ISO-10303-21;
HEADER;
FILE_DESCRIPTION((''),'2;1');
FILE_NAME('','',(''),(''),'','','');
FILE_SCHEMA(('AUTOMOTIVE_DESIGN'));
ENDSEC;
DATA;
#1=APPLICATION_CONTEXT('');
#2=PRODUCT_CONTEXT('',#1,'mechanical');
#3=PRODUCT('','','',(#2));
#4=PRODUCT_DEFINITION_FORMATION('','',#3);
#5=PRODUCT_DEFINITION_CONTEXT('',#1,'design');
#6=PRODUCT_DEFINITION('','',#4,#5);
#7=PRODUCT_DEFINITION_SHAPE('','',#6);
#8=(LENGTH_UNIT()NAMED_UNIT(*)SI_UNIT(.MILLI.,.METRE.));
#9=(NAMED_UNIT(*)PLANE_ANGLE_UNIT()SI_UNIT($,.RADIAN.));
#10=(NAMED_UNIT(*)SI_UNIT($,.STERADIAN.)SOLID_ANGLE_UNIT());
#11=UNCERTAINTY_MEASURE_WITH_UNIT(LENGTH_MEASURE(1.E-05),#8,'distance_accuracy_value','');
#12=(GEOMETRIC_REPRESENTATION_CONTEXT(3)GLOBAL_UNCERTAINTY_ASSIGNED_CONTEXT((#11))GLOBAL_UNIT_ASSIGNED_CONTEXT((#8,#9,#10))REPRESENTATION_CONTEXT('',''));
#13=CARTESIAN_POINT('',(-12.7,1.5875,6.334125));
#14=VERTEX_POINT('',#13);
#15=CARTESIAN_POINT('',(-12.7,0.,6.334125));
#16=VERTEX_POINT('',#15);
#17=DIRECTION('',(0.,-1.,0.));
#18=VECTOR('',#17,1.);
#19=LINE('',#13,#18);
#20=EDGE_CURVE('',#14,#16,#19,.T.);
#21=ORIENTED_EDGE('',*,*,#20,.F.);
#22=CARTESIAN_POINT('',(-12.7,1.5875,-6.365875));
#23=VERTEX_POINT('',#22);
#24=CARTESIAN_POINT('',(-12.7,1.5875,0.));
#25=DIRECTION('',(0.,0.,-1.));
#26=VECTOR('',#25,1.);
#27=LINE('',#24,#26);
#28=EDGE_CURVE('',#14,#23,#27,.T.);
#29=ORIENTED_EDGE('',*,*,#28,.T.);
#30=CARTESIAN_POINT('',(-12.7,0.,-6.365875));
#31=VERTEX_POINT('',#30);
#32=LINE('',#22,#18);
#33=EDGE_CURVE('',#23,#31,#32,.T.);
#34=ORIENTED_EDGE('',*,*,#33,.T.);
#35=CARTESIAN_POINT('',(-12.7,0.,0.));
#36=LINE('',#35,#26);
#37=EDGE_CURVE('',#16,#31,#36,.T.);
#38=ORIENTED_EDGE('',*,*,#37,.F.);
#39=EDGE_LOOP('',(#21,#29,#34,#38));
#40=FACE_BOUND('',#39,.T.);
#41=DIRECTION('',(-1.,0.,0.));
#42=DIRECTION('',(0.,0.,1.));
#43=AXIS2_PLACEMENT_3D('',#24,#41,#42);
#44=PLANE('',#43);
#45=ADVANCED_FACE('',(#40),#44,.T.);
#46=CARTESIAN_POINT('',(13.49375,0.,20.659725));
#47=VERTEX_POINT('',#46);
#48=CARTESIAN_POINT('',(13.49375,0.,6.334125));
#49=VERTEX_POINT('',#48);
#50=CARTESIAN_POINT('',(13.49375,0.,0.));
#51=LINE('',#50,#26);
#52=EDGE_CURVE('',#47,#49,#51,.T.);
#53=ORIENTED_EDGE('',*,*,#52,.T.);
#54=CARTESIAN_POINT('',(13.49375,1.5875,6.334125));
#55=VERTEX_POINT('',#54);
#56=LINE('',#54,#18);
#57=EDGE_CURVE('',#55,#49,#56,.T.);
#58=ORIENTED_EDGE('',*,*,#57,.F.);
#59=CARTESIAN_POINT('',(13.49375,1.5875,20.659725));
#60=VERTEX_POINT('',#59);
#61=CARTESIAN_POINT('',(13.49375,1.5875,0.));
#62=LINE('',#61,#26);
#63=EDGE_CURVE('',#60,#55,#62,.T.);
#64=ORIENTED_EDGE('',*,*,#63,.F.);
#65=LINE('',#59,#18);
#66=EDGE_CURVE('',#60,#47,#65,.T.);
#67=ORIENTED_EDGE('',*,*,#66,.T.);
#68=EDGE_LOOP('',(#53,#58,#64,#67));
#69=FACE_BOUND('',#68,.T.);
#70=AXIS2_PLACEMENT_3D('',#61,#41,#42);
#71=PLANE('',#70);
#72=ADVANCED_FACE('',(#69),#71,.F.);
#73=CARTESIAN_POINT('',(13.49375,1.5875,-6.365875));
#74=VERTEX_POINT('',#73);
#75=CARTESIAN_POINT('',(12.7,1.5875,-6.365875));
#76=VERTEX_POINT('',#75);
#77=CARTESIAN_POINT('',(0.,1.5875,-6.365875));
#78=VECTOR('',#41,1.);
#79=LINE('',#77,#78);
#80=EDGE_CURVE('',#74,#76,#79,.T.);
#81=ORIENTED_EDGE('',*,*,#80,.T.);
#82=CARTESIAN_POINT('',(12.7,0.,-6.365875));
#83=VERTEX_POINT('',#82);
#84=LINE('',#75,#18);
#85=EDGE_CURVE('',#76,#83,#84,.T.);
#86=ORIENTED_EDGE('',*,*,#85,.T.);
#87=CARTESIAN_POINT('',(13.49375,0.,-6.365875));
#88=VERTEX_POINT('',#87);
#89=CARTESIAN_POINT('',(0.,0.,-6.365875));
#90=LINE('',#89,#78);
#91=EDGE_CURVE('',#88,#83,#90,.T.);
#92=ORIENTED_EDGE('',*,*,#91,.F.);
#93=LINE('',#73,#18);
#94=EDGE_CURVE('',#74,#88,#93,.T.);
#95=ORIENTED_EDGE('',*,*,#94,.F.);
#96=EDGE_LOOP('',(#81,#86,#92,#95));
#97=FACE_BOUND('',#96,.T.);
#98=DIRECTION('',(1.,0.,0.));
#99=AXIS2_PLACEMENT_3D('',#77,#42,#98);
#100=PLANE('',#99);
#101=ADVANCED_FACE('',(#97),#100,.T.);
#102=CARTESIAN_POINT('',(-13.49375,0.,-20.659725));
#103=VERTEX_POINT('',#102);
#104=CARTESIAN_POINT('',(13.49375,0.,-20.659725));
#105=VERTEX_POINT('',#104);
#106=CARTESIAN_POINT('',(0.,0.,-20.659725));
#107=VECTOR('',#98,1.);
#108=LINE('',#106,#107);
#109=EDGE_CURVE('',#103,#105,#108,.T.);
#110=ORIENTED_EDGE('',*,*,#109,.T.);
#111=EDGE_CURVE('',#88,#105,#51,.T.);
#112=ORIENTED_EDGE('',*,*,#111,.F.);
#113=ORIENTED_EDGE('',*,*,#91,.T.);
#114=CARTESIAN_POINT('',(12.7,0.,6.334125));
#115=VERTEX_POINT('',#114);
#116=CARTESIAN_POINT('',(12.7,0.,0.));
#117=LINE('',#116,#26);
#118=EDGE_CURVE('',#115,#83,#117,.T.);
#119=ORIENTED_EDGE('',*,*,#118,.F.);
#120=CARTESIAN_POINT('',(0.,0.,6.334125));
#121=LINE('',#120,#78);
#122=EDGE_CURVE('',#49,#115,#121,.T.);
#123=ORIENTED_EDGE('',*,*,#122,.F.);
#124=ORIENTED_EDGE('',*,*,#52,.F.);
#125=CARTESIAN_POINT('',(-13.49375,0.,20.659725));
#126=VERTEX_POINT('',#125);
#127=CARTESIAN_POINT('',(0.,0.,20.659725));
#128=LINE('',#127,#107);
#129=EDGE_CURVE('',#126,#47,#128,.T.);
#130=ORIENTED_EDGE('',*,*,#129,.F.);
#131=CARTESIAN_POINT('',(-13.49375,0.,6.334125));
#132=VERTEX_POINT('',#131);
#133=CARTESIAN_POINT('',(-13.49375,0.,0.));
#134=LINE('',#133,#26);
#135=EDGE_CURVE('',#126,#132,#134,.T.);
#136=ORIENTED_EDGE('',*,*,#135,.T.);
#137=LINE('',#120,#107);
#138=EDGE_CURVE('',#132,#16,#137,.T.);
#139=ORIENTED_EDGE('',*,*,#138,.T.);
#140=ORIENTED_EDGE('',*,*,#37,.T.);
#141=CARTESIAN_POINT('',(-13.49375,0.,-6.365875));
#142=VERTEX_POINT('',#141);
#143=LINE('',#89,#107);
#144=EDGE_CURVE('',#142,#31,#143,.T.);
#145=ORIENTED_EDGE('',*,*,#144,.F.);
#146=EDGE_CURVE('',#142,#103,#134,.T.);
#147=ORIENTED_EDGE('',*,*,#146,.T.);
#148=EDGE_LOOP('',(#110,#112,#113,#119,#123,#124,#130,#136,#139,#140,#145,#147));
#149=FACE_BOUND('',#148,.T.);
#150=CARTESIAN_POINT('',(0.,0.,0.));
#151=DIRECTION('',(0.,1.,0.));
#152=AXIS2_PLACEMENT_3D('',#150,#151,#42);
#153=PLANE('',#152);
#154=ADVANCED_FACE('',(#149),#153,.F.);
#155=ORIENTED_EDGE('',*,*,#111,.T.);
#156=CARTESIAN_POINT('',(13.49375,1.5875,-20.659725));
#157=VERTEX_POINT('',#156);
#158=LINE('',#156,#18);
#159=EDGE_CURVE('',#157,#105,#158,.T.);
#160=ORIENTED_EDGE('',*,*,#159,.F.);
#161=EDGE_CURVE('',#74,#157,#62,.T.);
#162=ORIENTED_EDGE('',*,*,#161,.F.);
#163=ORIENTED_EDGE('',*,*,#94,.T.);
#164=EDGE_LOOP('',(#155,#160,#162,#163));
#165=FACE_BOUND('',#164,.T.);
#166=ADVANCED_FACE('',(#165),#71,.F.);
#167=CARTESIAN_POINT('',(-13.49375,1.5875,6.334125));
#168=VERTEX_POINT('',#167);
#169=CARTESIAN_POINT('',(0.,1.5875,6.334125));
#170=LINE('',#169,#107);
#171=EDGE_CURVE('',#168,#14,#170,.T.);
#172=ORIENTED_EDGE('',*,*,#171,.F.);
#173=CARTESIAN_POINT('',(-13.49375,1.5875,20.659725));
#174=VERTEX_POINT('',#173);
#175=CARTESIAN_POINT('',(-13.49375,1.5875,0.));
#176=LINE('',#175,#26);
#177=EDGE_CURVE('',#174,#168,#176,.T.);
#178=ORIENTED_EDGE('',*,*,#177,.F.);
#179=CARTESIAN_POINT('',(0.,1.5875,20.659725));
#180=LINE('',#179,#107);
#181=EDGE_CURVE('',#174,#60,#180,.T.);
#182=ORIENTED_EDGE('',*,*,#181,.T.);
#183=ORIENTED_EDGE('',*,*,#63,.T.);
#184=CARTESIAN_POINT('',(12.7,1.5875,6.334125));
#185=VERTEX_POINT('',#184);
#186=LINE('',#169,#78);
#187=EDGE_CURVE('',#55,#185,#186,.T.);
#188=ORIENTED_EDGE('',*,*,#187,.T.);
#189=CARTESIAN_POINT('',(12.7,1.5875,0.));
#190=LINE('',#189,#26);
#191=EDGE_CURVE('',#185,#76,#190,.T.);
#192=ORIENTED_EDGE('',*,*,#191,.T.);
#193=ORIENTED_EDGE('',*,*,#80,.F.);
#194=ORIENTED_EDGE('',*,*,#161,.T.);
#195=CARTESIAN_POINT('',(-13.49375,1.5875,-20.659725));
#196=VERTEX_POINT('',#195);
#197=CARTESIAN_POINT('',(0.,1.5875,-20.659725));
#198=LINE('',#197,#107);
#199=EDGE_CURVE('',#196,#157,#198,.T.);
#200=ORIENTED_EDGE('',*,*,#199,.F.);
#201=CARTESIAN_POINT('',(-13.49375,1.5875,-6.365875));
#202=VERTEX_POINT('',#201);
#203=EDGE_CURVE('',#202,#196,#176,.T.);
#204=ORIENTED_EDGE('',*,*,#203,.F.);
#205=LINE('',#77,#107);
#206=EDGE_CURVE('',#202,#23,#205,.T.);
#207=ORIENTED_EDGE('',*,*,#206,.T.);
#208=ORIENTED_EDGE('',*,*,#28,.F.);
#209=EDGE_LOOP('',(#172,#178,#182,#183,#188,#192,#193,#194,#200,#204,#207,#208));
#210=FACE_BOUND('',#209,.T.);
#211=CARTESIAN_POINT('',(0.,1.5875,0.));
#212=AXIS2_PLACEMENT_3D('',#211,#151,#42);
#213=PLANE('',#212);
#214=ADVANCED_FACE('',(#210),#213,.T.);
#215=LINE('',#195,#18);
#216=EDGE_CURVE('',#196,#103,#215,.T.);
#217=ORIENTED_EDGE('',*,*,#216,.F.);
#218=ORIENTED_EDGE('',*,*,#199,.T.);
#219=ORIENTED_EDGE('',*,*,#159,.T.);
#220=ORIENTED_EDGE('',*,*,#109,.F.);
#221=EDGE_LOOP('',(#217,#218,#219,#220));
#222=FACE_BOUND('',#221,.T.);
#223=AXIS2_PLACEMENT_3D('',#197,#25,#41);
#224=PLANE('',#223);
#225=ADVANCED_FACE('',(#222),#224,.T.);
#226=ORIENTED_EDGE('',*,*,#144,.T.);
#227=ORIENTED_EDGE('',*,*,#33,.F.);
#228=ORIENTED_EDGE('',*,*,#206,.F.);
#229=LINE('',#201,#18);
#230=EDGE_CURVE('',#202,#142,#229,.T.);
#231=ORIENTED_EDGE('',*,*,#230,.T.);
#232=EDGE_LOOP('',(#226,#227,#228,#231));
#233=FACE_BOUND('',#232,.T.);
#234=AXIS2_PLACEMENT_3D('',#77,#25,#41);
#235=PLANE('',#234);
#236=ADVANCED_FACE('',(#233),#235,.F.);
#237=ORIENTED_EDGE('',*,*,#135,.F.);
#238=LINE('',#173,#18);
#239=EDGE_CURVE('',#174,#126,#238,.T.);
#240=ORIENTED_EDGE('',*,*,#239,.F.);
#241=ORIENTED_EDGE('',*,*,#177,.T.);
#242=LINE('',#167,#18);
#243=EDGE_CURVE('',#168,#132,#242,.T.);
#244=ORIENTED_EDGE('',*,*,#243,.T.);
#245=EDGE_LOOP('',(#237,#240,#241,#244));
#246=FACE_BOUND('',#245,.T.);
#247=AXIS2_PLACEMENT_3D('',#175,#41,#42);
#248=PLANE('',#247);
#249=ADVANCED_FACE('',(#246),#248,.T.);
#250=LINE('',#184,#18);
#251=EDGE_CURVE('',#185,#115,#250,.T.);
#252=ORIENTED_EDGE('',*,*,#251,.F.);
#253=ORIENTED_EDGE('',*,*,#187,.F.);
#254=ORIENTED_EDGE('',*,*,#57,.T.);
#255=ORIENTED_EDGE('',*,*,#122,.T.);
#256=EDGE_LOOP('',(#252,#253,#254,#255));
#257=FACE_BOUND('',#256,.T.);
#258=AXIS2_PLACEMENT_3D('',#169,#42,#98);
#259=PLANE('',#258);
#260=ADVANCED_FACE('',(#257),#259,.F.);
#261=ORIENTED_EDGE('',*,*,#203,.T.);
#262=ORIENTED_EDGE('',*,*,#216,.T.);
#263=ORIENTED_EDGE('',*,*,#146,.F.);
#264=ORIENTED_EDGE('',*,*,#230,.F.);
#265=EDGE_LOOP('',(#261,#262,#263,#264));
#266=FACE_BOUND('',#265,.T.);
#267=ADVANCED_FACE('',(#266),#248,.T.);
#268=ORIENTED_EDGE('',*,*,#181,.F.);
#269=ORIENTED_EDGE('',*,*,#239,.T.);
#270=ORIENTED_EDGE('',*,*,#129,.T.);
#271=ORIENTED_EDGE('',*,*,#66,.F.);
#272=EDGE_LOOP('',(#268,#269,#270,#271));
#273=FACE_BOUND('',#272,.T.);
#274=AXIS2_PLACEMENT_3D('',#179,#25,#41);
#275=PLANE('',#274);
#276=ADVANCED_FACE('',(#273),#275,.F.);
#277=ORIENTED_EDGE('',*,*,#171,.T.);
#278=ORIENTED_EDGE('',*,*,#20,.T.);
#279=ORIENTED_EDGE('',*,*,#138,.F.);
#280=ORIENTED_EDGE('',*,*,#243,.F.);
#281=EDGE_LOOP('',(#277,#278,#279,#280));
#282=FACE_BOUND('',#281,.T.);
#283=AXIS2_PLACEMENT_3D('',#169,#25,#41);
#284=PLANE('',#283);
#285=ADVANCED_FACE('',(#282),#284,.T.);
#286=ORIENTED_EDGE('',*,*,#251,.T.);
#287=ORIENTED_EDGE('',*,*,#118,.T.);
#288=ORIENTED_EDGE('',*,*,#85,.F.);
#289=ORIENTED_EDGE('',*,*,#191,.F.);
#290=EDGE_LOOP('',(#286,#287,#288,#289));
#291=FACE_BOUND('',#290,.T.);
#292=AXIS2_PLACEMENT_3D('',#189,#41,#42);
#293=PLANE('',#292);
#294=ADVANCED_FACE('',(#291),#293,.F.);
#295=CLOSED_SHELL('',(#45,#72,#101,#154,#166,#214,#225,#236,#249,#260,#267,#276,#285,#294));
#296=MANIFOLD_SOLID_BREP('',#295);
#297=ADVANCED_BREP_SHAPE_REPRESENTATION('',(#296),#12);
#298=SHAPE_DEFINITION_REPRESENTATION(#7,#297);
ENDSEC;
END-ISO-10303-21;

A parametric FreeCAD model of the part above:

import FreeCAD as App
import Part
import Sketcher
from FreeCAD import Vector
Q = App.Units.Quantity


def add_polygon(sketch, points):
    """Adds a closed chain of lines whose ends are joined by coincident constraints."""
    first, n = sketch.GeometryCount, len(points)
    for a, b in zip(points, points[1:] + points[:1]):
        sketch.addGeometry(Part.LineSegment(App.Vector(*a, 0), App.Vector(*b, 0)), False)
    for i in range(n):
        sketch.addConstraint(Sketcher.Constraint("Coincident", first + i, 2, first + (i + 1) % n, 1))

doc = App.newDocument("Part")
body = doc.addObject("PartDesign::Body", "Body")

sketch1 = body.newObject("Sketcher::SketchObject", "Sketch")
sketch1.AttachmentSupport = (doc.getObject("XZ_Plane"), [""])
sketch1.MapMode = "FlatFace"
add_polygon(sketch1, [(-13.5, 6.3), (-13.5, 20.7), (13.5, 20.7), (13.5, 6.3), (12.7, 6.3), (12.7, -6.4), (13.5, -6.4), (13.5, -20.7), (-13.5, -20.7), (-13.5, -6.4), (-12.7, -6.4), (-12.7, 6.3)])
sketch1.addConstraint([
    Sketcher.Constraint("Vertical", 0),
    Sketcher.Constraint("Horizontal", 1),
    Sketcher.Constraint("Vertical", 2),
    Sketcher.Constraint("Horizontal", 3),
    Sketcher.Constraint("Vertical", 4),
    Sketcher.Constraint("Horizontal", 5),
    Sketcher.Constraint("Vertical", 6),
    Sketcher.Constraint("Horizontal", 7),
    Sketcher.Constraint("Vertical", 8),
    Sketcher.Constraint("Horizontal", 9),
    Sketcher.Constraint("Vertical", 10),
    Sketcher.Constraint("Horizontal", 11),
    Sketcher.Constraint("Symmetric", 0, 2, 6, 2, -1, 1),
    Sketcher.Constraint("Symmetric", 5, 2, 8, 2, -2),
    Sketcher.Constraint("Symmetric", 3, 2, 10, 2, -2),
    Sketcher.Constraint("Vertical", 2, 2, 5, 2),
    Sketcher.Constraint("DistanceY", 4, 2, 4, 1, Q("0.5 in")),
    Sketcher.Constraint("DistanceX", 9, 2, 4, 2, Q("1 in")),
    Sketcher.Constraint("DistanceX", 1, 1, 1, 2, Q("1.0625 in")),
    Sketcher.Constraint("DistanceY", 0, 1, 0, 2, Q("0.564 in")),
    Sketcher.Constraint("DistanceY", 6, 2, 6, 1, Q("14.29385 mm")),
])
pad1 = body.newObject("PartDesign::Pad", "Pad")
pad1.Profile = sketch1
pad1.Length = Q("0.0625 in")
pad1.Reversed = True

doc.recompute()
